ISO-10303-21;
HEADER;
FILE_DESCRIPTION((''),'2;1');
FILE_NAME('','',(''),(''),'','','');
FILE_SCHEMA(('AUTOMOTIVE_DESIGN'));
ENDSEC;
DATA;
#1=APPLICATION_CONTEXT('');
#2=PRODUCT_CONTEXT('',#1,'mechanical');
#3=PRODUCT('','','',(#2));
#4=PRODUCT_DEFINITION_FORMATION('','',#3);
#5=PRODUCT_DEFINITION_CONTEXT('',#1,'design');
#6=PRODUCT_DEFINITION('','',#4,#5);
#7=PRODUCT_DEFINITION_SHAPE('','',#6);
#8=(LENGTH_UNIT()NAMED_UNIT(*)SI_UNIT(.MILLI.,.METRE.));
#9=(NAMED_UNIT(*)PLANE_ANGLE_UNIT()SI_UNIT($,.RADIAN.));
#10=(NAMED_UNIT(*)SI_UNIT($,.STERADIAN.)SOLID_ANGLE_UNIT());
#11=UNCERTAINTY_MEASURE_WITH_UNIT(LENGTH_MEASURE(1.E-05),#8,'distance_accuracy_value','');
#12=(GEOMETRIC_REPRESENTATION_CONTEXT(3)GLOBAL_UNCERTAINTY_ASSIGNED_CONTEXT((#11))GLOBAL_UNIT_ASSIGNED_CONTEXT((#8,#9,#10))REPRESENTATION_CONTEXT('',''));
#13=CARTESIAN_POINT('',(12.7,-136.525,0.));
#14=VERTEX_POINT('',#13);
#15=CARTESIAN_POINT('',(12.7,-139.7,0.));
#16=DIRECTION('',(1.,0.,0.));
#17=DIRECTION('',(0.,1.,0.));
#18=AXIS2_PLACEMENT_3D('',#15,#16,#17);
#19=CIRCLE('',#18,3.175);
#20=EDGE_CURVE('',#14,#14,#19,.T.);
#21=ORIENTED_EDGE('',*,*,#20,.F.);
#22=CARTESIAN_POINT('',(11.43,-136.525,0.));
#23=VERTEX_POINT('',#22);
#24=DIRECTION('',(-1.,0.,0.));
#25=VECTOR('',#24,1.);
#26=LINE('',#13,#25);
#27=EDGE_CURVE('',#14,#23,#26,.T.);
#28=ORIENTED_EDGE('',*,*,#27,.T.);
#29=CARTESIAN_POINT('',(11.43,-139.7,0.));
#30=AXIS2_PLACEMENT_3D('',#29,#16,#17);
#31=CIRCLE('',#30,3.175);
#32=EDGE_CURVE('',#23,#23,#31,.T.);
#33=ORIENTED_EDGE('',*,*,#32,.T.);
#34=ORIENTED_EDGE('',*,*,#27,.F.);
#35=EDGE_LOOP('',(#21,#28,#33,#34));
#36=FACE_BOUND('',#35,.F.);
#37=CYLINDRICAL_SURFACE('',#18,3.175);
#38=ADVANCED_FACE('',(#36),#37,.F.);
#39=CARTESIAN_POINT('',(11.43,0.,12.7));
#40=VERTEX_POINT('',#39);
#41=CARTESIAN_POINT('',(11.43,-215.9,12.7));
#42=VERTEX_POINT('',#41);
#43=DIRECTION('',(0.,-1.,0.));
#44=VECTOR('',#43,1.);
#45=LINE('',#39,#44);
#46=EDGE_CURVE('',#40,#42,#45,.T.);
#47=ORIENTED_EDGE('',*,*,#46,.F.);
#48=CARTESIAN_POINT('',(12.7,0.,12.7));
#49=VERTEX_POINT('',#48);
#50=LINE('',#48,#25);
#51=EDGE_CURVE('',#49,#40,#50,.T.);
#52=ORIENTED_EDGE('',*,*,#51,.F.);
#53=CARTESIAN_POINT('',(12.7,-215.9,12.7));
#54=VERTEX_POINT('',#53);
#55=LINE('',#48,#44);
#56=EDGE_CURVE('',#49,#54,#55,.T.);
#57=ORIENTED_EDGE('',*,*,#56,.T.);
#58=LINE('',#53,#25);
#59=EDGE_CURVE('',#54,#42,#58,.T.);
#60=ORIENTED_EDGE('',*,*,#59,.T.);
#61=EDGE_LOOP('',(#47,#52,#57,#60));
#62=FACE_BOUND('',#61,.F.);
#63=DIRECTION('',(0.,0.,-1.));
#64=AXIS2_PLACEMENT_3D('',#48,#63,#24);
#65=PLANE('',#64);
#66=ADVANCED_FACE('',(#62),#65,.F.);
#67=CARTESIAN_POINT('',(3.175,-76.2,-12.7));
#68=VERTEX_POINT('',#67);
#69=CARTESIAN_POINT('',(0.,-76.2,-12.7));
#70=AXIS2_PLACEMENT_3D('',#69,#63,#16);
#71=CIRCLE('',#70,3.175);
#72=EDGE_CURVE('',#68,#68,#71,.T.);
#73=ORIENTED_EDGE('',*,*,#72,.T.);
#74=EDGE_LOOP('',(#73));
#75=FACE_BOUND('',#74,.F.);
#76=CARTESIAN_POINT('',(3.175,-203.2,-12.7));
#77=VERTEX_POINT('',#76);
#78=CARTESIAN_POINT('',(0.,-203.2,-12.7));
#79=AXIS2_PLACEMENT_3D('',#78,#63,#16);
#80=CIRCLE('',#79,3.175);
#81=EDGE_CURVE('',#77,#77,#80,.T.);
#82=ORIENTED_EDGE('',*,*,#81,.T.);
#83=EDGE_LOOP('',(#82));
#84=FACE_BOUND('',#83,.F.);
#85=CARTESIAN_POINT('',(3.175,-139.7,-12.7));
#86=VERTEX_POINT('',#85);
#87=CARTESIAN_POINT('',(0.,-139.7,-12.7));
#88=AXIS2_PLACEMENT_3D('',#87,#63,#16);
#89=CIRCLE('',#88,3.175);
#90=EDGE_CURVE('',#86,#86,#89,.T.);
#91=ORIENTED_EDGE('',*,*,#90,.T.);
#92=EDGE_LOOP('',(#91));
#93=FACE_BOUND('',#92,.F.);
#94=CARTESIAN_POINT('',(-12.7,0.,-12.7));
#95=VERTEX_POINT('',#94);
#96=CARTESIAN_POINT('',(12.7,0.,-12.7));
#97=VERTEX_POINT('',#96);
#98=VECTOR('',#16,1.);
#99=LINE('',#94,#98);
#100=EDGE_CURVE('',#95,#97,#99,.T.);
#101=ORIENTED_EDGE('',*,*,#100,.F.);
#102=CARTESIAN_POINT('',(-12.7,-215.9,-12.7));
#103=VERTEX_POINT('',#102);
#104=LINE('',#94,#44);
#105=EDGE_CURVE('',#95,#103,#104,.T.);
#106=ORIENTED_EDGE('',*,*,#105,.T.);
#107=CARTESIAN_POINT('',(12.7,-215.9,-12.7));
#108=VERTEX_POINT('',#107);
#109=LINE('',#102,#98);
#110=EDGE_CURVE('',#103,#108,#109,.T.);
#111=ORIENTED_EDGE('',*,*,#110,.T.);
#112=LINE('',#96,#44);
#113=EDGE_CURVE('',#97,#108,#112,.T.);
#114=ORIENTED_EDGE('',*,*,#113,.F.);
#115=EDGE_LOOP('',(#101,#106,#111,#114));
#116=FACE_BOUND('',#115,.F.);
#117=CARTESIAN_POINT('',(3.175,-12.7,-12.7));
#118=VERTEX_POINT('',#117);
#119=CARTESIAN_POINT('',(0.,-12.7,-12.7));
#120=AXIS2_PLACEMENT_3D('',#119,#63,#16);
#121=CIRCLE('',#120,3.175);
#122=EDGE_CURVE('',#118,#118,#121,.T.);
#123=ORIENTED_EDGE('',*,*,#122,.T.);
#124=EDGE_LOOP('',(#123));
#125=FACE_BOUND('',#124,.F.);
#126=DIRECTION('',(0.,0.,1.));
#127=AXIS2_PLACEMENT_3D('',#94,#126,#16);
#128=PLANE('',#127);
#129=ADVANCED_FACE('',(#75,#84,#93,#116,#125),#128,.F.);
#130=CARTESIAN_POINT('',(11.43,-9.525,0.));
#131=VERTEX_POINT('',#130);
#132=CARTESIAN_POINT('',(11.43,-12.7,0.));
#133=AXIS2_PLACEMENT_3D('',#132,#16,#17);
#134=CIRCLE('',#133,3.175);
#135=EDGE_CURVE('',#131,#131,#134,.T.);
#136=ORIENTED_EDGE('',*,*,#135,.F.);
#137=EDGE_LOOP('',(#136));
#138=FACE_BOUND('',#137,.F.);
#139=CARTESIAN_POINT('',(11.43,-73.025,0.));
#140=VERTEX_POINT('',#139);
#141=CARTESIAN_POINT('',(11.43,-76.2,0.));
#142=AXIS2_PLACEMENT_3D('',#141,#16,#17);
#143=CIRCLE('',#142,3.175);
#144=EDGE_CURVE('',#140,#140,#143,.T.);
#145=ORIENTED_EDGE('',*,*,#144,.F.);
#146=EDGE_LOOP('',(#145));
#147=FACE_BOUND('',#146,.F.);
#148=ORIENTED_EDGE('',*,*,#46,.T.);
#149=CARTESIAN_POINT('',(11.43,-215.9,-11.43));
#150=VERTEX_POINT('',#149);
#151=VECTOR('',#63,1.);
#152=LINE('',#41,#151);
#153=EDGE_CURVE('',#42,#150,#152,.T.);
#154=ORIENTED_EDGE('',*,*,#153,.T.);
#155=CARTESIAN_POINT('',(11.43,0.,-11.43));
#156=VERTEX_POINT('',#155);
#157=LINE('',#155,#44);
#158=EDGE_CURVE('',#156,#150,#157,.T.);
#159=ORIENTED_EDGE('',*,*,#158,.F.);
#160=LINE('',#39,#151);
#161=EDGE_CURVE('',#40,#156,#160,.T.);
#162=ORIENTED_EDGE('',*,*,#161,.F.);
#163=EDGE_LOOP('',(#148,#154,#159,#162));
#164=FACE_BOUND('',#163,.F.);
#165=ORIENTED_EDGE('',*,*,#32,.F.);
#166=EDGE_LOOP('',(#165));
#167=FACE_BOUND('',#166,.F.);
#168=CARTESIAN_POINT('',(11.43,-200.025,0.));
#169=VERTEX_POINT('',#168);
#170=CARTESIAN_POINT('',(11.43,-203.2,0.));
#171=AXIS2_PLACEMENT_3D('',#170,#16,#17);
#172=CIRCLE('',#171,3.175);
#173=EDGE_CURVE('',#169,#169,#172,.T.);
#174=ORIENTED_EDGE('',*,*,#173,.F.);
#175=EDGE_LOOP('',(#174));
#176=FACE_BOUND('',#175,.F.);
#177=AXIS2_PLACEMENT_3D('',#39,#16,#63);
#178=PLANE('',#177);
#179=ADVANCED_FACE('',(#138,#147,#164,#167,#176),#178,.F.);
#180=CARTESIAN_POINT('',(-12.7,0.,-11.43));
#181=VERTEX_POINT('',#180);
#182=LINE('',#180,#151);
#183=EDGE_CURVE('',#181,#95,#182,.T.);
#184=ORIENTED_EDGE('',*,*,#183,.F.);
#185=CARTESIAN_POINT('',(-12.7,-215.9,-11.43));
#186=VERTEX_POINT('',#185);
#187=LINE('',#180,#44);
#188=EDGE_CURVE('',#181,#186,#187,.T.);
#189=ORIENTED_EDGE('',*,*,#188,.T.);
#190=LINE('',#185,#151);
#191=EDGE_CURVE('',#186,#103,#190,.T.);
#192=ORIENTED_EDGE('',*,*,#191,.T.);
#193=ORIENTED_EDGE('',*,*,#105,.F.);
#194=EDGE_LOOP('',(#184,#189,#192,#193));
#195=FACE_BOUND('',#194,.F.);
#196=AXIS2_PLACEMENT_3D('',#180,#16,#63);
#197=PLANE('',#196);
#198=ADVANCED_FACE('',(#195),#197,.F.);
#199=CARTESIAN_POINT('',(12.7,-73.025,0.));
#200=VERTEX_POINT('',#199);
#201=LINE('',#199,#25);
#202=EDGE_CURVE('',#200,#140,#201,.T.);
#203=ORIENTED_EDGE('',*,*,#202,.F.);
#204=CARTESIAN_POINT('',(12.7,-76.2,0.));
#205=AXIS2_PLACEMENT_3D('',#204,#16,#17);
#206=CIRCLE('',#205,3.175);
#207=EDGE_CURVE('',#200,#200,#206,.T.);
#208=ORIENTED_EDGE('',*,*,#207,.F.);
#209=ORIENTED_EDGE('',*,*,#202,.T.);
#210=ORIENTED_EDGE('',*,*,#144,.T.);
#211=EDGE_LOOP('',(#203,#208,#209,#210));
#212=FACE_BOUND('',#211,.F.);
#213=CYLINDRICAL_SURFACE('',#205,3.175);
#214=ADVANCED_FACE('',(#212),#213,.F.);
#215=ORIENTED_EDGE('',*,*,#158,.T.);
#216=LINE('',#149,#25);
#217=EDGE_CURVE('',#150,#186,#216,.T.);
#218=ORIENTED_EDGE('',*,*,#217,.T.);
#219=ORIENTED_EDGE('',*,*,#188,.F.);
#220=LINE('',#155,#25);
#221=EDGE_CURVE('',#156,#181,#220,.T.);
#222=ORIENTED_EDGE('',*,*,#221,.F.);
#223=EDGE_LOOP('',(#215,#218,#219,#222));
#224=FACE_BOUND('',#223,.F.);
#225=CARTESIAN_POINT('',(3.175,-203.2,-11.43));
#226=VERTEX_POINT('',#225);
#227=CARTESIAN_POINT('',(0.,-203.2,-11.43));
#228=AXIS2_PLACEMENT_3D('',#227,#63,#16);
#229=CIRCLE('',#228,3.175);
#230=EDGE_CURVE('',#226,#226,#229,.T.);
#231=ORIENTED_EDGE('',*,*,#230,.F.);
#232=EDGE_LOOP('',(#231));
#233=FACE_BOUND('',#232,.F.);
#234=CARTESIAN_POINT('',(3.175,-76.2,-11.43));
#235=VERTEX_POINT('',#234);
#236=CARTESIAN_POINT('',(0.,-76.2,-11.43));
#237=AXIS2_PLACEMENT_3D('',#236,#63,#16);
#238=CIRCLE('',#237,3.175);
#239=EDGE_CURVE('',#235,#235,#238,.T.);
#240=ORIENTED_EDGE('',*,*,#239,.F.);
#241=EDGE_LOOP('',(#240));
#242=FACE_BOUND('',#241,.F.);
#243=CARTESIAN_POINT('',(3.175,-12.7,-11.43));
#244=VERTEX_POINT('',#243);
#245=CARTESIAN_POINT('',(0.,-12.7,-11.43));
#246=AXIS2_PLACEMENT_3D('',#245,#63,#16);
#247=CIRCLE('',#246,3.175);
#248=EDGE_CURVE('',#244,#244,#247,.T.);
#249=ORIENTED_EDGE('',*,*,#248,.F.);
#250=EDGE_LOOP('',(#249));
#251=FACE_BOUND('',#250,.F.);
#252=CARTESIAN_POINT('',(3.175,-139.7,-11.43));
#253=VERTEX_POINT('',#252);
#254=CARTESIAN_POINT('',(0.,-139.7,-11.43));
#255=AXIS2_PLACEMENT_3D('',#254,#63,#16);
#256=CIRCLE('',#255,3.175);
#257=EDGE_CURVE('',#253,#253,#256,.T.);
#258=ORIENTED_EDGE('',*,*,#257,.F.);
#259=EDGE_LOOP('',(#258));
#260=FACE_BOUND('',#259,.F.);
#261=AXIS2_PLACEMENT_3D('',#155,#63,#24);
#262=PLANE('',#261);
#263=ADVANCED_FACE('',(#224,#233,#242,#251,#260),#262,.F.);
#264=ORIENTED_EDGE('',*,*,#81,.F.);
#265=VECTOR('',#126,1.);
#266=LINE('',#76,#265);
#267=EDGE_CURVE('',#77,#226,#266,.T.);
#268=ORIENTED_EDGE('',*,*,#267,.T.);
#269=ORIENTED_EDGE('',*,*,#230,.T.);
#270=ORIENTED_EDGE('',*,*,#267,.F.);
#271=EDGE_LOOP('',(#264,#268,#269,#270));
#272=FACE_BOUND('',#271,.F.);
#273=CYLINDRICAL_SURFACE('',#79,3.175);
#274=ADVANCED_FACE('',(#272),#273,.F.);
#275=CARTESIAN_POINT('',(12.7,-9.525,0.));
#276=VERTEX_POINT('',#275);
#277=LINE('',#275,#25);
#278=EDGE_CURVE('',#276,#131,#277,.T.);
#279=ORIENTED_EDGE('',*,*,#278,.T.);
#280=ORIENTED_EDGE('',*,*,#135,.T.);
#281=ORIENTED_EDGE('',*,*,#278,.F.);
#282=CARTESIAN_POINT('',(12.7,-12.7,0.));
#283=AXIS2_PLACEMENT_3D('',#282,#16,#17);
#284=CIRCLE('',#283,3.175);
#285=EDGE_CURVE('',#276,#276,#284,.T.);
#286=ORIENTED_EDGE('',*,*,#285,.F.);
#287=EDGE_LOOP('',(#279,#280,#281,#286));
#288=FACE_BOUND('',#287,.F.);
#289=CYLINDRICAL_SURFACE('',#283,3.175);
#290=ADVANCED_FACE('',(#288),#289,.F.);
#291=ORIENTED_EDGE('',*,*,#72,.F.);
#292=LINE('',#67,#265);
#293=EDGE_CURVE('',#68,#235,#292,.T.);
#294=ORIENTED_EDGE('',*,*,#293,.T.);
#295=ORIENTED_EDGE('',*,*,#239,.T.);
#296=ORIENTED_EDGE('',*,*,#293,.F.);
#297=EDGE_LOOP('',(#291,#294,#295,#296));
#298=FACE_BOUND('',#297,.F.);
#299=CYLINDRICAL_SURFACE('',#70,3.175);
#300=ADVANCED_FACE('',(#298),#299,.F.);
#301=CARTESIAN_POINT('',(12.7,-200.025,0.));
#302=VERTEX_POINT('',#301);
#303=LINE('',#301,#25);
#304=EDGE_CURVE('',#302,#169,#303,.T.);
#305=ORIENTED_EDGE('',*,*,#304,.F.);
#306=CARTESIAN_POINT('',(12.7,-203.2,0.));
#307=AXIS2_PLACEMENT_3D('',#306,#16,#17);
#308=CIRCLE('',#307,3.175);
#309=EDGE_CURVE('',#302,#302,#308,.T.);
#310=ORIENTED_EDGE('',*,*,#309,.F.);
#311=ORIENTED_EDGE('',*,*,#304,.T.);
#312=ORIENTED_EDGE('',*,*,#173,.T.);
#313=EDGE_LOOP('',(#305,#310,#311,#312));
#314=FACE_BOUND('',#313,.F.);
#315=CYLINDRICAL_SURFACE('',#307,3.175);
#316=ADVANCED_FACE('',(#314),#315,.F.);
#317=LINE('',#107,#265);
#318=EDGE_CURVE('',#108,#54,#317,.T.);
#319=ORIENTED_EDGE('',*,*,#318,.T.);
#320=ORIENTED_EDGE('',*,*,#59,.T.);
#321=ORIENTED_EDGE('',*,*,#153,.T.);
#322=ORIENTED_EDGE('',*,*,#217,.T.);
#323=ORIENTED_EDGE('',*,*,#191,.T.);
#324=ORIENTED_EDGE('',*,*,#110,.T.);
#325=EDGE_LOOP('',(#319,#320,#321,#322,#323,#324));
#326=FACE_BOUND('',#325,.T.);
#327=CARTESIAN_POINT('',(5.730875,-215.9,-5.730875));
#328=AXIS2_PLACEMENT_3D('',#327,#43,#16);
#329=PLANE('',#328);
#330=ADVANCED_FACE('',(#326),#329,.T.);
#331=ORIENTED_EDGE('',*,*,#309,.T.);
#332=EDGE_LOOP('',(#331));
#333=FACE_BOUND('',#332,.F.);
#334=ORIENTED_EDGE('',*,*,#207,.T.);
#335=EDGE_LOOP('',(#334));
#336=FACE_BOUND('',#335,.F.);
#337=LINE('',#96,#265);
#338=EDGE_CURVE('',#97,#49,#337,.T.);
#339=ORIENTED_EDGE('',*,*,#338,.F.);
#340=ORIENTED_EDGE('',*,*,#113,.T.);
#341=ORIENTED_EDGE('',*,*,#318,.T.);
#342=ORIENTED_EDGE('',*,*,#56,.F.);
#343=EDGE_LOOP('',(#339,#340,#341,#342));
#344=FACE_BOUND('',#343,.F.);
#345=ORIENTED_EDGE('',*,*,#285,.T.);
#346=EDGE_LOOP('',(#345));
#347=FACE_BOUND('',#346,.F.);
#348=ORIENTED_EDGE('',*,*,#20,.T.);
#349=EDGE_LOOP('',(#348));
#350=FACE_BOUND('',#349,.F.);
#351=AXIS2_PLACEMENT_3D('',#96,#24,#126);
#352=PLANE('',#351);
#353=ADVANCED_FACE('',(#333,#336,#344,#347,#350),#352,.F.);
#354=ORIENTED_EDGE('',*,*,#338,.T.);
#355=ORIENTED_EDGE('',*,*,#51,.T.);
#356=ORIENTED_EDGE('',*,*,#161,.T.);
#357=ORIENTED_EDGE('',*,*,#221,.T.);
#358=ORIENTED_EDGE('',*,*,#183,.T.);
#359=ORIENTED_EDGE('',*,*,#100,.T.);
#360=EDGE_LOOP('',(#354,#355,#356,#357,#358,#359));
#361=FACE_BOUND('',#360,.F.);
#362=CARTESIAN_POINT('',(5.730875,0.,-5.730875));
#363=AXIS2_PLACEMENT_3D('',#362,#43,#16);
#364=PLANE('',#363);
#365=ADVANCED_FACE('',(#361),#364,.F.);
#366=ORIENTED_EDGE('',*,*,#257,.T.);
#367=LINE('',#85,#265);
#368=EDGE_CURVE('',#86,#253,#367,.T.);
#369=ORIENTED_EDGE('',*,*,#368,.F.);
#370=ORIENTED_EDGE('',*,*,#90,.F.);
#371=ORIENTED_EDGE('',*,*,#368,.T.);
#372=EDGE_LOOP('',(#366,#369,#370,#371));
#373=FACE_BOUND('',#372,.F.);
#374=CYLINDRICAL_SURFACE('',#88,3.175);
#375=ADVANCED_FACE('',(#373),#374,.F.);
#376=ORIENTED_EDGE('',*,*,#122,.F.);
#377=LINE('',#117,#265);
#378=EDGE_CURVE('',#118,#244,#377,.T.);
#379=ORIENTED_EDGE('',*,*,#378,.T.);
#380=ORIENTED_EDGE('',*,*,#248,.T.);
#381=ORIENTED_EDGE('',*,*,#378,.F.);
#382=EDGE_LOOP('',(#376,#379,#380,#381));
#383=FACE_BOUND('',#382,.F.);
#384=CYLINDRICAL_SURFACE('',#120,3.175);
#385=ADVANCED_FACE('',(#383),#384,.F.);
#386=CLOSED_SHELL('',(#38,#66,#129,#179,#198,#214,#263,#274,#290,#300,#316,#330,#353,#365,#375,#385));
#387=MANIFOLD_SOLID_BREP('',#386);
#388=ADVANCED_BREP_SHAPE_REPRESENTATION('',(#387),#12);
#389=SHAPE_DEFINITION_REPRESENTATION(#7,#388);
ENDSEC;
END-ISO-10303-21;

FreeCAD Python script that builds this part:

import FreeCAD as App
import Part
import Sketcher
Q = App.Units.Quantity

doc = App.newDocument("Part")
body = doc.addObject("PartDesign::Body", "Body")

# Sketch on XZ plane
sketch1 = body.newObject("Sketcher::SketchObject", "Sketch")
sketch1.AttachmentSupport = (doc.getObject("XZ_Plane"), [""])
sketch1.MapMode = "FlatFace"
sketch1.addGeometry(Part.LineSegment(App.Vector(-12.7, -11.43, 0), App.Vector(-12.7, -12.7, 0)), False)
sketch1.addGeometry(Part.LineSegment(App.Vector(-12.7, -12.7, 0), App.Vector(12.7, -12.7, 0)), False)
sketch1.addGeometry(Part.LineSegment(App.Vector(12.7, -12.7, 0), App.Vector(12.7, 12.7, 0)), False)
sketch1.addGeometry(Part.LineSegment(App.Vector(12.7, 12.7, 0), App.Vector(11.43, 12.7, 0)), False)
sketch1.addGeometry(Part.LineSegment(App.Vector(11.43, 12.7, 0), App.Vector(11.43, -11.43, 0)), False)
sketch1.addGeometry(Part.LineSegment(App.Vector(11.43, -11.43, 0), App.Vector(-12.7, -11.43, 0)), False)
sketch1.addConstraint(Sketcher.Constraint("Coincident", 0, 2, 1, 1))
sketch1.addConstraint(Sketcher.Constraint("Coincident", 1, 2, 2, 1))
sketch1.addConstraint(Sketcher.Constraint("Coincident", 2, 2, 3, 1))
sketch1.addConstraint(Sketcher.Constraint("Coincident", 3, 2, 4, 1))
sketch1.addConstraint(Sketcher.Constraint("Coincident", 4, 2, 5, 1))
sketch1.addConstraint(Sketcher.Constraint("Coincident", 5, 2, 0, 1))
sketch1.addConstraint(Sketcher.Constraint("Vertical", 0))
sketch1.addConstraint(Sketcher.Constraint("Horizontal", 1))
sketch1.addConstraint(Sketcher.Constraint("Vertical", 2))
sketch1.addConstraint(Sketcher.Constraint("Horizontal", 3))
sketch1.addConstraint(Sketcher.Constraint("Vertical", 4))
sketch1.addConstraint(Sketcher.Constraint("Horizontal", 5))
sketch1.addConstraint(Sketcher.Constraint("Symmetric", 0, 2, 2, 2, -1, 1))
sketch1.addConstraint(Sketcher.Constraint("Equal", 3, 0))
sketch1.addConstraint(Sketcher.Constraint("Equal", 1, 2))
sketch1.addConstraint(Sketcher.Constraint("DistanceX", 1, 1, 1, 2, Q("1 in")))
sketch1.addConstraint(Sketcher.Constraint("DistanceX", 3, 2, 3, 1, Q("0.05 in")))
pad1 = body.newObject("PartDesign::Pad", "Pad")
pad1.Profile = sketch1
pad1.Length = Q("8.5 in")

# Sketch on XY plane
sketch2 = body.newObject("Sketcher::SketchObject", "Sketch001")
sketch2.AttachmentSupport = (doc.getObject("XY_Plane"), [""])
sketch2.MapMode = "FlatFace"
sketch2.AttachmentOffset = App.Placement(App.Vector(0, 0, -0.5 * 25.4), App.Rotation())
sketch2.addGeometry(Part.Circle(App.Vector(0, -203.2, 0), App.Vector(0, 0, 1), 3.175), False)
sketch2.addGeometry(Part.Circle(App.Vector(0, -139.7, 0), App.Vector(0, 0, 1), 3.175), False)
sketch2.addGeometry(Part.Circle(App.Vector(0, -76.2, 0), App.Vector(0, 0, 1), 3.175), False)
sketch2.addGeometry(Part.Circle(App.Vector(0, -12.7, 0), App.Vector(0, 0, 1), 3.175), False)
sketch2.addConstraint(Sketcher.Constraint("Equal", 0, 1))
sketch2.addConstraint(Sketcher.Constraint("Equal", 1, 2))
sketch2.addConstraint(Sketcher.Constraint("Equal", 2, 3))
sketch2.addConstraint(Sketcher.Constraint("PointOnObject", 0, 3, -2))
sketch2.addConstraint(Sketcher.Constraint("PointOnObject", 1, 3, -2))
sketch2.addConstraint(Sketcher.Constraint("PointOnObject", 2, 3, -2))
sketch2.addConstraint(Sketcher.Constraint("PointOnObject", 3, 3, -2))
sketch2.addConstraint(Sketcher.Constraint("Diameter", 0, Q("0.25 in")))
sketch2.addConstraint(Sketcher.Constraint("DistanceY", 0, 3, -1, 1, Q("8 in")))
sketch2.addConstraint(Sketcher.Constraint("DistanceY", 2, 3, -1, 1, Q("3 in")))
sketch2.addConstraint(Sketcher.Constraint("DistanceY", 1, 3, 3, 3, Q("5 in")))
sketch2.addConstraint(Sketcher.Constraint("DistanceY", 1, 3, -1, 1, Q("5.5 in")))
pocket1 = body.newObject("PartDesign::Pocket", "Pocket")
pocket1.Profile = sketch2
pocket1.Type = "ThroughAll"
pocket1.Reversed = True

# Sketch on YZ plane
sketch3 = body.newObject("Sketcher::SketchObject", "Sketch002")
sketch3.AttachmentSupport = (doc.getObject("YZ_Plane"), [""])
sketch3.MapMode = "FlatFace"
sketch3.AttachmentOffset = App.Placement(App.Vector(0, 0, 0.5 * 25.4), App.Rotation())
sketch3.addGeometry(Part.Circle(App.Vector(-139.7, 0, 0), App.Vector(0, 0, 1), 3.175), False)
sketch3.addGeometry(Part.Circle(App.Vector(-203.2, 0, 0), App.Vector(0, 0, 1), 3.175), False)
sketch3.addGeometry(Part.Circle(App.Vector(-76.2, 0, 0), App.Vector(0, 0, 1), 3.175), False)
sketch3.addGeometry(Part.Circle(App.Vector(-12.7, 0, 0), App.Vector(0, 0, 1), 3.175), False)
sketch3.addConstraint(Sketcher.Constraint("Equal", 0, 1))
sketch3.addConstraint(Sketcher.Constraint("Equal", 1, 2))
sketch3.addConstraint(Sketcher.Constraint("Equal", 2, 3))
sketch3.addConstraint(Sketcher.Constraint("PointOnObject", 0, 3, -1))
sketch3.addConstraint(Sketcher.Constraint("PointOnObject", 1, 3, -1))
sketch3.addConstraint(Sketcher.Constraint("PointOnObject", 2, 3, -1))
sketch3.addConstraint(Sketcher.Constraint("PointOnObject", 3, 3, -1))
sketch3.addConstraint(Sketcher.Constraint("Diameter", 0, Q("0.25 in")))
sketch3.addConstraint(Sketcher.Constraint("DistanceX", 1, 3, -1, 1, Q("8 in")))
sketch3.addConstraint(Sketcher.Constraint("DistanceX", 2, 3, -1, 1, Q("3 in")))
sketch3.addConstraint(Sketcher.Constraint("DistanceX", 0, 3, 3, 3, Q("5 in")))
sketch3.addConstraint(Sketcher.Constraint("DistanceX", 0, 3, -1, 1, Q("5.5 in")))
pocket2 = body.newObject("PartDesign::Pocket", "Pocket001")
pocket2.Profile = sketch3
pocket2.Length = Q("1 in")

doc.recompute()
